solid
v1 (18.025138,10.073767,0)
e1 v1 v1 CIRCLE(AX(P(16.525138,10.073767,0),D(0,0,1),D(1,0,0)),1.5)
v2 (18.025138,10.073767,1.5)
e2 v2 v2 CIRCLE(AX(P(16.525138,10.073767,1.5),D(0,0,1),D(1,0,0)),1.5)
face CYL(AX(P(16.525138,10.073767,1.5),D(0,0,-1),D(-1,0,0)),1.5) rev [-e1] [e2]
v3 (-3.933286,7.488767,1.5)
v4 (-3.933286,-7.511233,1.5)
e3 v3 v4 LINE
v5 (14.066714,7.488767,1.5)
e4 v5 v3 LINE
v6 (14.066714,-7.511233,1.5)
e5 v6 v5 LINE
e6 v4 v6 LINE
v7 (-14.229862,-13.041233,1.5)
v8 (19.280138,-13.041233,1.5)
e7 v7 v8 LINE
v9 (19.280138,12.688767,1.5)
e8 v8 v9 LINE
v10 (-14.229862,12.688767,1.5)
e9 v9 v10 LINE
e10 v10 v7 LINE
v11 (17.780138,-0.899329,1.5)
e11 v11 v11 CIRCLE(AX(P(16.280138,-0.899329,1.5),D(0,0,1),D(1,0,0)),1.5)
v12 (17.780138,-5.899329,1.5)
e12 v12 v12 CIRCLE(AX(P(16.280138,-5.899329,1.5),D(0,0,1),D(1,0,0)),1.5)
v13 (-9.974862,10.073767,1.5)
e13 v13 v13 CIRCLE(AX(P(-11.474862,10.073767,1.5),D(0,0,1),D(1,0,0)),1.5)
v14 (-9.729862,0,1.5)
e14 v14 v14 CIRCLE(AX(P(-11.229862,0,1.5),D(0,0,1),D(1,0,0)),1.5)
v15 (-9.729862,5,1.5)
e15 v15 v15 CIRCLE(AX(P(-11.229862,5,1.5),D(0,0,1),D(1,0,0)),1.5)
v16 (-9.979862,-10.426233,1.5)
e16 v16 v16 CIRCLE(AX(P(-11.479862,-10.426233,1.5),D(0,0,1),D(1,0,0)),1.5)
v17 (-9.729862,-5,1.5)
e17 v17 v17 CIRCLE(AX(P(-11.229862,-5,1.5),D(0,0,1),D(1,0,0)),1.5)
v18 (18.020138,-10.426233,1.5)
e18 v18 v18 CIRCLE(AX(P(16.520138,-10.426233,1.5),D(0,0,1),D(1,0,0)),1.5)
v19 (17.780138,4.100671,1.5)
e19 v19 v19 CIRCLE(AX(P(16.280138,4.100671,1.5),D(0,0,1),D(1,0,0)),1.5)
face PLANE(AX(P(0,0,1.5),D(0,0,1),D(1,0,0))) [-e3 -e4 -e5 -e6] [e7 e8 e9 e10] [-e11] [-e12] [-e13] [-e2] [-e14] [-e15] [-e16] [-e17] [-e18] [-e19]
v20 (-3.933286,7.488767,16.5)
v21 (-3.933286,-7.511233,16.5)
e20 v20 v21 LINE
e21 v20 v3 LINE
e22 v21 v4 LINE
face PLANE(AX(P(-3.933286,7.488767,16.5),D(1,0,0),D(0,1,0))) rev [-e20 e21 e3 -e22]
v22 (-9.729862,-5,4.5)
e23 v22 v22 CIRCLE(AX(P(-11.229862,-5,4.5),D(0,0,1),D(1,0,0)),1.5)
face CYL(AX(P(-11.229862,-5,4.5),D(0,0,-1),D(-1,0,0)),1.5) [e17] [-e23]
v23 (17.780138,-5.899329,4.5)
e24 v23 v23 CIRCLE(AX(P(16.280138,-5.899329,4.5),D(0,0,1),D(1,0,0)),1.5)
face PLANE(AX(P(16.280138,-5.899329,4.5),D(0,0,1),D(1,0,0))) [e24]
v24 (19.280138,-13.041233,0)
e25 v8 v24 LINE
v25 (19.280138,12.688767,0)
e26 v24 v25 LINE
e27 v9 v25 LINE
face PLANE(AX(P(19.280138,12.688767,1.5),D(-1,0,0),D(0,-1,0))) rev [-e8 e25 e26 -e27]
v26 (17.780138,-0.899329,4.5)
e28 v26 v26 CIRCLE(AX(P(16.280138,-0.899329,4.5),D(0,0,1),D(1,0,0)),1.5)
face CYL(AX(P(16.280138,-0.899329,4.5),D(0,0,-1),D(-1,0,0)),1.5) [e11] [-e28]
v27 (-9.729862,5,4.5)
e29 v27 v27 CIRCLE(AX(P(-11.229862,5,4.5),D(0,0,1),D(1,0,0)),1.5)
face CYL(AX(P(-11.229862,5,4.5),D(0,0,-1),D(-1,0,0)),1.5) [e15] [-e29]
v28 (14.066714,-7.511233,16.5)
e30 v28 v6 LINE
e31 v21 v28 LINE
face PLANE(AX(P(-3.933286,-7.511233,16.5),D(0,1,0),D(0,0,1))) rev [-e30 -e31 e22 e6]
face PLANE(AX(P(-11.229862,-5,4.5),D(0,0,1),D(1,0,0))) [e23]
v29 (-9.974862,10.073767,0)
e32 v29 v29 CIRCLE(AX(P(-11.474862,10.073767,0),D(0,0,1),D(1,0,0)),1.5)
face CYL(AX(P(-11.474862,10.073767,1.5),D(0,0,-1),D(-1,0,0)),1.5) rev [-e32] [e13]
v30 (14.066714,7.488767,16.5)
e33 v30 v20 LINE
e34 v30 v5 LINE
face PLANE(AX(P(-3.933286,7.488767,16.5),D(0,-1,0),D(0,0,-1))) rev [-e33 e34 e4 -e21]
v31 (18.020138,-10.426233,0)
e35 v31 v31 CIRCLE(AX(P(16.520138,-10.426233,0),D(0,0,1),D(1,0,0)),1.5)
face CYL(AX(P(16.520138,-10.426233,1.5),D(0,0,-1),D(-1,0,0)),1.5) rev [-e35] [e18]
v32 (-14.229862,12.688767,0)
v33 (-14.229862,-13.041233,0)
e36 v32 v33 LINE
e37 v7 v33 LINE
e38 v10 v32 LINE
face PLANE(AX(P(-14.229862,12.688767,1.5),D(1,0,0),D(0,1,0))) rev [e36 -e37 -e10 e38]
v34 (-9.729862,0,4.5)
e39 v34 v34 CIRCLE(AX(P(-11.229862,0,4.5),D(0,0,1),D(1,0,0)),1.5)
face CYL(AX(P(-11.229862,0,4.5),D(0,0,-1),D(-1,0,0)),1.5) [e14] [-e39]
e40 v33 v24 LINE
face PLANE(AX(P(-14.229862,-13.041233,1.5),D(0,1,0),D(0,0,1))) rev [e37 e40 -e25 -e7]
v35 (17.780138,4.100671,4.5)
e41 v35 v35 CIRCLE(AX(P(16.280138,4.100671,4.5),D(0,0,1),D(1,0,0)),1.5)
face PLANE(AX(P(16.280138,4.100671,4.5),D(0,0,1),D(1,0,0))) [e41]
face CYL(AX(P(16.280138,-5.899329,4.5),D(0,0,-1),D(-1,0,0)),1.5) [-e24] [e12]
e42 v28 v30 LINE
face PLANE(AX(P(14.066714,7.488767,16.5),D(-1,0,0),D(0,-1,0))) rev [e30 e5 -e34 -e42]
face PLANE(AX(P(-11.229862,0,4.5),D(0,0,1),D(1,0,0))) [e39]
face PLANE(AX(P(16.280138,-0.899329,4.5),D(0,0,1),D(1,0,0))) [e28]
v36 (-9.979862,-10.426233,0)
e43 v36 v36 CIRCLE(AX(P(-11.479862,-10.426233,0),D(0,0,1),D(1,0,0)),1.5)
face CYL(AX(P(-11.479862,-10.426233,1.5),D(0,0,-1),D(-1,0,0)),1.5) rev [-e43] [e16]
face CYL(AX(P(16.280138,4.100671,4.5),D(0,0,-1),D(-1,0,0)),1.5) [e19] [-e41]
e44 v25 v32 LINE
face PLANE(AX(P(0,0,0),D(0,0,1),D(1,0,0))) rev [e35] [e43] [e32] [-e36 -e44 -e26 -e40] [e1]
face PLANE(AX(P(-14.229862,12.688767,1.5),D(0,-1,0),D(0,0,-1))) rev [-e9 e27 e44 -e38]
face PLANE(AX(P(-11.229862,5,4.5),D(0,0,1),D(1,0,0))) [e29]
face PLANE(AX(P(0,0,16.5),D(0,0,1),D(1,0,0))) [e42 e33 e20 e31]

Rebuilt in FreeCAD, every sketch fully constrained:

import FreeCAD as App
import Part
import Sketcher


def add_polygon(sketch, points):
    """Adds a closed chain of lines whose ends are joined by coincident constraints."""
    first, n = sketch.GeometryCount, len(points)
    for a, b in zip(points, points[1:] + points[:1]):
        sketch.addGeometry(Part.LineSegment(App.Vector(*a, 0), App.Vector(*b, 0)), False)
    for i in range(n):
        sketch.addConstraint(Sketcher.Constraint("Coincident", first + i, 2, first + (i + 1) % n, 1))

doc = App.newDocument("Part")
body = doc.addObject("PartDesign::Body", "Body")

sketch1 = body.newObject("Sketcher::SketchObject", "Sketch")
sketch1.AttachmentSupport = (doc.getObject("XY_Plane"), [""])
sketch1.MapMode = "FlatFace"
add_polygon(sketch1, [(-14.229862, 12.688767), (-14.229862, -13.041233), (19.280138, -13.041233), (19.280138, 12.688767)])
sketch1.addGeometry(Part.Circle(App.Vector(-11.479862, -10.426233, 0), App.Vector(0, 0, 1), 1.5), False)
sketch1.addGeometry(Part.Circle(App.Vector(16.520138, -10.426233, 0), App.Vector(0, 0, 1), 1.5), False)
sketch1.addGeometry(Part.Circle(App.Vector(-11.474862, 10.073767, 0), App.Vector(0, 0, 1), 1.5), False)
sketch1.addGeometry(Part.Circle(App.Vector(16.525138, 10.073767, 0), App.Vector(0, 0, 1), 1.5), False)
sketch1.addConstraint(Sketcher.Constraint("Vertical", 0))
sketch1.addConstraint(Sketcher.Constraint("Horizontal", 1))
sketch1.addConstraint(Sketcher.Constraint("Vertical", 2))
sketch1.addConstraint(Sketcher.Constraint("Horizontal", 3))
sketch1.addConstraint(Sketcher.Constraint("Equal", 4, 5))
sketch1.addConstraint(Sketcher.Constraint("Equal", 5, 6))
sketch1.addConstraint(Sketcher.Constraint("Equal", 6, 7))
sketch1.addConstraint(Sketcher.Constraint("Horizontal", 4, 3, 5, 3))
sketch1.addConstraint(Sketcher.Constraint("Horizontal", 6, 3, 7, 3))
sketch1.addConstraint(Sketcher.Constraint("Diameter", 4, 3.0))
sketch1.addConstraint(Sketcher.Constraint("DistanceX", 4, 3, 5, 3, 28.0))
sketch1.addConstraint(Sketcher.Constraint("DistanceX", 6, 3, 7, 3, 28.0))
sketch1.addConstraint(Sketcher.Constraint("DistanceX", 1, 1, 1, 2, 33.51))
sketch1.addConstraint(Sketcher.Constraint("DistanceY", 0, 2, 0, 1, 25.73))
sketch1.addConstraint(Sketcher.Constraint("DistanceY", 4, 3, 6, 3, 20.499999))
sketch1.addConstraint(Sketcher.Constraint("DistanceX", 0, 2, 4, 3, 2.75))
sketch1.addConstraint(Sketcher.Constraint("DistanceX", 4, 3, 6, 3, 0.005))
sketch1.addConstraint(Sketcher.Constraint("DistanceY", 0, 2, 4, 3, 2.615))
sketch1.addConstraint(Sketcher.Constraint("DistanceX", 4, 3, -1, 1, 11.479862))
sketch1.addConstraint(Sketcher.Constraint("DistanceY", 4, 3, -1, 1, 10.426233))
pad1 = body.newObject("PartDesign::Pad", "Pad")
pad1.Profile = sketch1
pad1.Length = 1.5

sketch2 = body.newObject("Sketcher::SketchObject", "Sketch001")
sketch2.AttachmentSupport = (doc.getObject("XY_Plane"), [""])
sketch2.MapMode = "FlatFace"
sketch2.AttachmentOffset = App.Placement(App.Vector(0, 0, 1.5), App.Rotation())
add_polygon(sketch2, [(-3.933286, 7.488767), (-3.933286, -7.511233), (14.066714, -7.511233), (14.066714, 7.488767)])
sketch2.addConstraint(Sketcher.Constraint("Vertical", 0))
sketch2.addConstraint(Sketcher.Constraint("Horizontal", 1))
sketch2.addConstraint(Sketcher.Constraint("Vertical", 2))
sketch2.addConstraint(Sketcher.Constraint("Horizontal", 3))
sketch2.addConstraint(Sketcher.Constraint("DistanceX", 1, 1, 1, 2, 18.0))
sketch2.addConstraint(Sketcher.Constraint("DistanceY", 0, 2, 0, 1, 15.0))
sketch2.addConstraint(Sketcher.Constraint("DistanceX", 0, 2, -1, 1, 3.933286))
sketch2.addConstraint(Sketcher.Constraint("DistanceY", 0, 2, -1, 1, 7.511233))
pad2 = body.newObject("PartDesign::Pad", "Pad001")
pad2.Profile = sketch2
pad2.Length = 15

sketch3 = body.newObject("Sketcher::SketchObject", "Sketch002")
sketch3.AttachmentSupport = (doc.getObject("XY_Plane"), [""])
sketch3.MapMode = "FlatFace"
sketch3.AttachmentOffset = App.Placement(App.Vector(0, 0, 1.5), App.Rotation())
sketch3.addGeometry(Part.Circle(App.Vector(-11.229862, 5, 0), App.Vector(0, 0, 1), 1.5), False)
sketch3.addGeometry(Part.Circle(App.Vector(-11.229862, 0, 0), App.Vector(0, 0, 1), 1.5), False)
sketch3.addGeometry(Part.Circle(App.Vector(-11.229862, -5, 0), App.Vector(0, 0, 1), 1.5), False)
sketch3.addGeometry(Part.Circle(App.Vector(16.280138, 4.100671, 0), App.Vector(0, 0, 1), 1.5), False)
sketch3.addGeometry(Part.Circle(App.Vector(16.280138, -0.899329, 0), App.Vector(0, 0, 1), 1.5), False)
sketch3.addGeometry(Part.Circle(App.Vector(16.280138, -5.899329, 0), App.Vector(0, 0, 1), 1.5), False)
sketch3.addConstraint(Sketcher.Constraint("Equal", 0, 1))
sketch3.addConstraint(Sketcher.Constraint("Equal", 1, 2))
sketch3.addConstraint(Sketcher.Constraint("Equal", 2, 3))
sketch3.addConstraint(Sketcher.Constraint("Equal", 3, 4))
sketch3.addConstraint(Sketcher.Constraint("Equal", 4, 5))
sketch3.addConstraint(Sketcher.Constraint("Symmetric", 0, 3, 2, 3, -1))
sketch3.addConstraint(Sketcher.Constraint("PointOnObject", 1, 3, -1))
sketch3.addConstraint(Sketcher.Constraint("Vertical", 0, 3, 1, 3))
sketch3.addConstraint(Sketcher.Constraint("Vertical", 3, 3, 4, 3))
sketch3.addConstraint(Sketcher.Constraint("Vertical", 4, 3, 5, 3))
sketch3.addConstraint(Sketcher.Constraint("Diameter", 0, 3.0))
sketch3.addConstraint(Sketcher.Constraint("DistanceY", -1, 1, 0, 3, 5.0))
sketch3.addConstraint(Sketcher.Constraint("DistanceY", 4, 3, 3, 3, 5.0))
sketch3.addConstraint(Sketcher.Constraint("DistanceY", 5, 3, 4, 3, 5.0))
sketch3.addConstraint(Sketcher.Constraint("DistanceX", 0, 3, 3, 3, 27.51))
sketch3.addConstraint(Sketcher.Constraint("DistanceY", -1, 1, 3, 3, 4.100671))
sketch3.addConstraint(Sketcher.Constraint("DistanceX", 0, 3, -1, 1, 11.229862))
pad3 = body.newObject("PartDesign::Pad", "Pad002")
pad3.Profile = sketch3
pad3.Length = 3

doc.recompute()
